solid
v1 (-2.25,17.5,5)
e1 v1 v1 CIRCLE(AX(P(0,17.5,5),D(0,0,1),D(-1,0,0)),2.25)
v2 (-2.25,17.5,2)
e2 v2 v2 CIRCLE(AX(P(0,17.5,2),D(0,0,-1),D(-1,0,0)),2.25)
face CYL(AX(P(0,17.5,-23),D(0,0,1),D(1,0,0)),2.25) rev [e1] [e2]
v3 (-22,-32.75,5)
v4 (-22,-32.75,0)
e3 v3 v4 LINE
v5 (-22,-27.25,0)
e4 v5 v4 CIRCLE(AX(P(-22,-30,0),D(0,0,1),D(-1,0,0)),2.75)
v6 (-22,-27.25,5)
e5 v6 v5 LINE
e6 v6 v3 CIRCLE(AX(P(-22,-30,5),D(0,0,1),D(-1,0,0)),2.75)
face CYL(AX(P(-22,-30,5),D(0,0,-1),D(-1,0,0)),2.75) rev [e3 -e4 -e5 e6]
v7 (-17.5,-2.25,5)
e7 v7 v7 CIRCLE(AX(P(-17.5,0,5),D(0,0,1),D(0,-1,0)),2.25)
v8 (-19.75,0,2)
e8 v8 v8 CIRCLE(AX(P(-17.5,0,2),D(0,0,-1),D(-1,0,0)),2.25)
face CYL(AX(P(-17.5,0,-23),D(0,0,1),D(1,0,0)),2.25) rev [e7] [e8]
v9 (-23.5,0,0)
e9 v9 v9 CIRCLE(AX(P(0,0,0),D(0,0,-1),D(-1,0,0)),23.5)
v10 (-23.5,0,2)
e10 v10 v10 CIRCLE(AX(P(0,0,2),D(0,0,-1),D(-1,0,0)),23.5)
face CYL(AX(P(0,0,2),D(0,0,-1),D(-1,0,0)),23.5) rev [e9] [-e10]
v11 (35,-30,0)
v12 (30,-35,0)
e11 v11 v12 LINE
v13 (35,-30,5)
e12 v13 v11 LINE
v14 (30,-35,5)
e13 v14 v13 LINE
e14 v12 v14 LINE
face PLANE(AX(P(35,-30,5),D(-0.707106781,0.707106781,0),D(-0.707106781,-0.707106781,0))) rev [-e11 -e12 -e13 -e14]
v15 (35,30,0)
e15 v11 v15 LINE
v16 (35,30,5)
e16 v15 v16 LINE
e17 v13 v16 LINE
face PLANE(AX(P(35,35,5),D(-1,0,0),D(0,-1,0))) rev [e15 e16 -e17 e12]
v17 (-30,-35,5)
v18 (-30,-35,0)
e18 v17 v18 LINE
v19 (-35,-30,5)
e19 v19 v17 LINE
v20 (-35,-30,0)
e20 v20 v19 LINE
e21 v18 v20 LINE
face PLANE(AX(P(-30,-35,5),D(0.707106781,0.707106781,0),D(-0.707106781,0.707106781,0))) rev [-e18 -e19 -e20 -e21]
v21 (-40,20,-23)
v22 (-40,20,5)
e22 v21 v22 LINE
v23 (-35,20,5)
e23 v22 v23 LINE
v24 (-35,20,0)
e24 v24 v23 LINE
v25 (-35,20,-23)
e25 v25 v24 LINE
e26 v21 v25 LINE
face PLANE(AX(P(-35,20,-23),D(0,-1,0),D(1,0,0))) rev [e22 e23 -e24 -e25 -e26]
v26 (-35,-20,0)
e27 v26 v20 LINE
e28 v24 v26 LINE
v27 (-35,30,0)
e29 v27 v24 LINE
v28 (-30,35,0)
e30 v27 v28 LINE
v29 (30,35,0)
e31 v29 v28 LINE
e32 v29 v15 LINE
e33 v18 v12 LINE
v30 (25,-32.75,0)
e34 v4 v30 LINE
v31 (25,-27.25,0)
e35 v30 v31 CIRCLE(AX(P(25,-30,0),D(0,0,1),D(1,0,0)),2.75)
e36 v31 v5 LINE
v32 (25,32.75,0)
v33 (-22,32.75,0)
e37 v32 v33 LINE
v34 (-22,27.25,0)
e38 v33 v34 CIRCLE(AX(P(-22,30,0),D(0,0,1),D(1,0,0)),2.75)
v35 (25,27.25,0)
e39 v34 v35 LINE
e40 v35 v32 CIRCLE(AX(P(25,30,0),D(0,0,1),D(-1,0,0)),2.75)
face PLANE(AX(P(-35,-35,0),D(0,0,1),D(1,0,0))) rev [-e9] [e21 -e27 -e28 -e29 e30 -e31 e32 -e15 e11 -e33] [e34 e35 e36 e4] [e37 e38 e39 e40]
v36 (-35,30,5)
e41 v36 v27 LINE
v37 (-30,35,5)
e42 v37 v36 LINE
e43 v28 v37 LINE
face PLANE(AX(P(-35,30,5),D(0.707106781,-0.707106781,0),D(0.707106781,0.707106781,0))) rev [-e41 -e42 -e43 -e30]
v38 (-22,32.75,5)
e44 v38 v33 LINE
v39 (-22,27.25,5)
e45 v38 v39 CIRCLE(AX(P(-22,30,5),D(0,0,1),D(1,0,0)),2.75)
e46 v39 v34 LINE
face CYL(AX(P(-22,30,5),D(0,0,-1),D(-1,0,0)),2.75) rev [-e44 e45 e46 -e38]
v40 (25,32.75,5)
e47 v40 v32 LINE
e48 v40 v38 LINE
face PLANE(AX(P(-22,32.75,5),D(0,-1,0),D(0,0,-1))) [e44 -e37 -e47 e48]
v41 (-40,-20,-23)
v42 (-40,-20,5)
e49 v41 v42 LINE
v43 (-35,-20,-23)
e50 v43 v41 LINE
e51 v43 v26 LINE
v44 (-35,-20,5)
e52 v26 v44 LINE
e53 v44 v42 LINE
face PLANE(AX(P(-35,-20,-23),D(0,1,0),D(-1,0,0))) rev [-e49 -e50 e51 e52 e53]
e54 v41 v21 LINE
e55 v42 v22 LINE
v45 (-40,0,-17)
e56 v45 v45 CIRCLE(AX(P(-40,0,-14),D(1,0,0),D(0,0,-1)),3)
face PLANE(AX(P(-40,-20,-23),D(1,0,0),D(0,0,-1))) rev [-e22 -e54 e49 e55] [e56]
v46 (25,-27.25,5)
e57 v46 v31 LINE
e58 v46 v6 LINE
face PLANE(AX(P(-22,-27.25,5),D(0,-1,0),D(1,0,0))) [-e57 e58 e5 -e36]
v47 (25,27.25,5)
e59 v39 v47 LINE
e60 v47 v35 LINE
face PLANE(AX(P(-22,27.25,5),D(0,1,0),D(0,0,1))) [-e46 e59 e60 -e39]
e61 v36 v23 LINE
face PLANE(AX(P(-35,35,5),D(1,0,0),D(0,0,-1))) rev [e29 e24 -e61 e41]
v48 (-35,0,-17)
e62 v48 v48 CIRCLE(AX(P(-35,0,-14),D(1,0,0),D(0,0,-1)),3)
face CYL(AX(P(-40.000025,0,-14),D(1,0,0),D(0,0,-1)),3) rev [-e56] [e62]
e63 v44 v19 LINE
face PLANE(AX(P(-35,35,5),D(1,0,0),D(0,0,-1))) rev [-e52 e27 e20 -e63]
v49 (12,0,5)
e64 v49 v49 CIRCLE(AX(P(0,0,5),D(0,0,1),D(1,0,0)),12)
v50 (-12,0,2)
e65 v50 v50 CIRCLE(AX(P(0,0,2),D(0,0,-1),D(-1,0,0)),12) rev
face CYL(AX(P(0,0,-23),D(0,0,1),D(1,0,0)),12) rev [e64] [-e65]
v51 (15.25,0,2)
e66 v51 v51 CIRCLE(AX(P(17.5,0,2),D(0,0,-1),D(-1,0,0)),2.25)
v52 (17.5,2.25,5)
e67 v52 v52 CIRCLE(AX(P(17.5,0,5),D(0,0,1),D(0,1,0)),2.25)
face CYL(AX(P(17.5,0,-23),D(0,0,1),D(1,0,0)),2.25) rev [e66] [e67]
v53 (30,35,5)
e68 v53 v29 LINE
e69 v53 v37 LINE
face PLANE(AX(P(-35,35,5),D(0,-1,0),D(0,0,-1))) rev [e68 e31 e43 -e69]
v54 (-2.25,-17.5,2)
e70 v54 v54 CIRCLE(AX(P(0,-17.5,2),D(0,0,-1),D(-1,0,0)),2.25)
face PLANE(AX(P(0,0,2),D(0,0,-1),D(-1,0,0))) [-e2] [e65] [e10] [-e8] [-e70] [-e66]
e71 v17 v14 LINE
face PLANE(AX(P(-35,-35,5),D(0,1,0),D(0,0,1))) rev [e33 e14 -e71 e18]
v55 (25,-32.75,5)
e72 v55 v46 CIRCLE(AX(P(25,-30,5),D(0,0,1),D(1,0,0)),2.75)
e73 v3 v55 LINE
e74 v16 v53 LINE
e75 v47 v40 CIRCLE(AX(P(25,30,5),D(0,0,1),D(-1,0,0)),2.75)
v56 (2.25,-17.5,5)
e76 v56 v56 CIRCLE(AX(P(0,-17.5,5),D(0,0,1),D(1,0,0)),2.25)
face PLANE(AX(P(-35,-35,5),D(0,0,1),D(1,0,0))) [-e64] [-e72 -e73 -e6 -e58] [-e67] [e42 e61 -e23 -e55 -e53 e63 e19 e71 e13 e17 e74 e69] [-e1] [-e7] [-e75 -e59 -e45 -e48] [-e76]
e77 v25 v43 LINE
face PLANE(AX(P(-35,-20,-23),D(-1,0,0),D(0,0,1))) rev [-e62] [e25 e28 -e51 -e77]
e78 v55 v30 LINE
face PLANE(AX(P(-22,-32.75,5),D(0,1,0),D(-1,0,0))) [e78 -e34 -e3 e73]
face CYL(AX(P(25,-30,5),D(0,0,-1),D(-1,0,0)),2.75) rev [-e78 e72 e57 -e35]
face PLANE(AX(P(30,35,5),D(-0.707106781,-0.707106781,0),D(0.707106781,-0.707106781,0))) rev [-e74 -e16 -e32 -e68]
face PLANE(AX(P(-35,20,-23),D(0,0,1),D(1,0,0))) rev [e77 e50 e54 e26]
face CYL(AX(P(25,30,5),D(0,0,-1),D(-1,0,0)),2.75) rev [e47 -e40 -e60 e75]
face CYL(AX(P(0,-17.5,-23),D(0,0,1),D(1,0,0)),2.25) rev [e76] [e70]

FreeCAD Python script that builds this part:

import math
import FreeCAD as App
import Part
import Sketcher


def edges_at(feature, points):
    """Names of the edges that pass closest to the given points."""
    edges = feature.Shape.Edges
    near = lambda p: min(range(len(edges)), key=lambda i: edges[i].distToShape(Part.Vertex(*p))[0])
    return sorted({f"Edge{near(p) + 1}" for p in points})

doc = App.newDocument("Part")
body = doc.addObject("PartDesign::Body", "Body")

# Sketch on XY plane
sketch1 = body.newObject("Sketcher::SketchObject", "Sketch")
sketch1.AttachmentSupport = (doc.getObject("XY_Plane"), [""])
sketch1.MapMode = "FlatFace"
sketch1.addGeometry(Part.LineSegment(App.Vector(-35, 35, 0), App.Vector(-35, -35, 0)), False)
sketch1.addGeometry(Part.LineSegment(App.Vector(-35, -35, 0), App.Vector(35, -35, 0)), False)
sketch1.addGeometry(Part.LineSegment(App.Vector(35, -35, 0), App.Vector(35, 35, 0)), False)
sketch1.addGeometry(Part.LineSegment(App.Vector(35, 35, 0), App.Vector(-35, 35, 0)), False)
sketch1.addGeometry(Part.ArcOfCircle(Part.Circle(App.Vector(-22, -30, 0), App.Vector(0, 0, 1), 2.8), math.radians(90), math.radians(270)), False)
sketch1.addGeometry(Part.LineSegment(App.Vector(-22, -27.2, 0), App.Vector(25, -27.2, 0)), False)
sketch1.addGeometry(Part.ArcOfCircle(Part.Circle(App.Vector(25, -30, 0), App.Vector(0, 0, 1), 2.8), math.radians(-90), math.radians(90)), False)
sketch1.addGeometry(Part.LineSegment(App.Vector(25, -32.8, 0), App.Vector(-22, -32.8, 0)), False)
sketch1.addGeometry(Part.ArcOfCircle(Part.Circle(App.Vector(-22, 30, 0), App.Vector(0, 0, 1), 2.8), math.radians(90), math.radians(270)), False)
sketch1.addGeometry(Part.LineSegment(App.Vector(-22, 32.8, 0), App.Vector(25, 32.8, 0)), False)
sketch1.addGeometry(Part.ArcOfCircle(Part.Circle(App.Vector(25, 30, 0), App.Vector(0, 0, 1), 2.8), math.radians(-90), math.radians(90)), False)
sketch1.addGeometry(Part.LineSegment(App.Vector(25, 27.2, 0), App.Vector(-22, 27.2, 0)), False)
sketch1.addConstraint(Sketcher.Constraint("Coincident", 0, 2, 1, 1))
sketch1.addConstraint(Sketcher.Constraint("Coincident", 1, 2, 2, 1))
sketch1.addConstraint(Sketcher.Constraint("Coincident", 2, 2, 3, 1))
sketch1.addConstraint(Sketcher.Constraint("Coincident", 3, 2, 0, 1))
sketch1.addConstraint(Sketcher.Constraint("Tangent", 4, 1, 5, 1))
sketch1.addConstraint(Sketcher.Constraint("Tangent", 5, 2, 6, 2))
sketch1.addConstraint(Sketcher.Constraint("Tangent", 6, 1, 7, 1))
sketch1.addConstraint(Sketcher.Constraint("Tangent", 7, 2, 4, 2))
sketch1.addConstraint(Sketcher.Constraint("Tangent", 8, 1, 9, 1))
sketch1.addConstraint(Sketcher.Constraint("Tangent", 9, 2, 10, 2))
sketch1.addConstraint(Sketcher.Constraint("Tangent", 10, 1, 11, 1))
sketch1.addConstraint(Sketcher.Constraint("Tangent", 11, 2, 8, 2))
sketch1.addConstraint(Sketcher.Constraint("Vertical", 0))
sketch1.addConstraint(Sketcher.Constraint("Horizontal", 1))
sketch1.addConstraint(Sketcher.Constraint("Vertical", 2))
sketch1.addConstraint(Sketcher.Constraint("Horizontal", 3))
sketch1.addConstraint(Sketcher.Constraint("Horizontal", 5))
sketch1.addConstraint(Sketcher.Constraint("Horizontal", 7))
sketch1.addConstraint(Sketcher.Constraint("Horizontal", 9))
sketch1.addConstraint(Sketcher.Constraint("Horizontal", 11))
sketch1.addConstraint(Sketcher.Constraint("Equal", 6, 8))
sketch1.addConstraint(Sketcher.Constraint("Symmetric", 0, 2, 2, 2, -1, 1))
sketch1.addConstraint(Sketcher.Constraint("Symmetric", 4, 3, 8, 3, -1))
sketch1.addConstraint(Sketcher.Constraint("Vertical", 6, 3, 10, 3))
sketch1.addConstraint(Sketcher.Constraint("Equal", 3, 0))
sketch1.addConstraint(Sketcher.Constraint("DistanceX", 1, 1, 1, 2, 70.0))
sketch1.addConstraint(Sketcher.Constraint("DistanceX", 5, 1, 5, 2, 47.0))
sketch1.addConstraint(Sketcher.Constraint("Radius", 4, 2.75))
sketch1.addConstraint(Sketcher.Constraint("DistanceX", 4, 3, -1, 1, 22.0))
sketch1.addConstraint(Sketcher.Constraint("DistanceY", 4, 3, -1, 1, 30.0))
pad1 = body.newObject("PartDesign::Pad", "Pad")
pad1.Profile = sketch1
pad1.Length = 5
doc.recompute()

chamfer = body.newObject("PartDesign::Chamfer", "Chamfer")
chamfer.Base = (pad1, edges_at(pad1, [
    (-35, 35, 2.5),
    (35, 35, 2.5),
    (35, -35, 2.5),
    (-35, -35, 2.5),
]))
chamfer.Size = 5

# Sketch on XY plane
sketch2 = body.newObject("Sketcher::SketchObject", "Sketch001")
sketch2.AttachmentSupport = (doc.getObject("XY_Plane"), [""])
sketch2.MapMode = "FlatFace"
sketch2.addGeometry(Part.LineSegment(App.Vector(-35, 20, 0), App.Vector(-35, -20, 0)), False)
sketch2.addGeometry(Part.LineSegment(App.Vector(-35, -20, 0), App.Vector(-40, -20, 0)), False)
sketch2.addGeometry(Part.LineSegment(App.Vector(-40, -20, 0), App.Vector(-40, 20, 0)), False)
sketch2.addGeometry(Part.LineSegment(App.Vector(-40, 20, 0), App.Vector(-35, 20, 0)), False)
sketch2.addConstraint(Sketcher.Constraint("Coincident", 0, 2, 1, 1))
sketch2.addConstraint(Sketcher.Constraint("Coincident", 1, 2, 2, 1))
sketch2.addConstraint(Sketcher.Constraint("Coincident", 2, 2, 3, 1))
sketch2.addConstraint(Sketcher.Constraint("Coincident", 3, 2, 0, 1))
sketch2.addConstraint(Sketcher.Constraint("Vertical", 0))
sketch2.addConstraint(Sketcher.Constraint("Horizontal", 1))
sketch2.addConstraint(Sketcher.Constraint("Vertical", 2))
sketch2.addConstraint(Sketcher.Constraint("Horizontal", 3))
sketch2.addConstraint(Sketcher.Constraint("DistanceX", 1, 2, 1, 1, 5.0))
sketch2.addConstraint(Sketcher.Constraint("DistanceY", 0, 2, 0, 1, 40.0))
sketch2.addConstraint(Sketcher.Constraint("DistanceX", 0, 2, -1, 1, 35.0))
sketch2.addConstraint(Sketcher.Constraint("DistanceY", 0, 2, -1, 1, 20.0))
pad2 = body.newObject("PartDesign::Pad", "Pad001")
pad2.Profile = sketch2
pad2.Type = "TwoLengths"
pad2.Length = 23
pad2.Length2 = 5
pad2.Reversed = True

# Sketch on YZ plane
sketch3 = body.newObject("Sketcher::SketchObject", "Sketch002")
sketch3.AttachmentSupport = (doc.getObject("YZ_Plane"), [""])
sketch3.MapMode = "FlatFace"
sketch3.AttachmentOffset = App.Placement(App.Vector(0, 0, -35), App.Rotation())
sketch3.addGeometry(Part.Circle(App.Vector(0, -14, 0), App.Vector(0, 0, 1), 3), False)
sketch3.addConstraint(Sketcher.Constraint("PointOnObject", 0, 3, -2))
sketch3.addConstraint(Sketcher.Constraint("Diameter", 0, 6.0))
sketch3.addConstraint(Sketcher.Constraint("DistanceY", 0, 3, -1, 1, 14.0))
pocket1 = body.newObject("PartDesign::Pocket", "Pocket")
pocket1.Profile = sketch3
pocket1.Type = "ThroughAll"

# Sketch on XY plane
sketch4 = body.newObject("Sketcher::SketchObject", "Sketch003")
sketch4.AttachmentSupport = (doc.getObject("XY_Plane"), [""])
sketch4.MapMode = "FlatFace"
sketch4.AttachmentOffset = App.Placement(App.Vector(0, 0, 5), App.Rotation())
sketch4.addGeometry(Part.Circle(App.Vector(0, 0, 0), App.Vector(0, 0, 1), 12), False)
sketch4.addConstraint(Sketcher.Constraint("Coincident", 0, 3, -1, 1))
sketch4.addConstraint(Sketcher.Constraint("Diameter", 0, 24.0))
pocket2 = body.newObject("PartDesign::Pocket", "Pocket001")
pocket2.Profile = sketch4
pocket2.Type = "ThroughAll"

# Sketch on XY plane
sketch5 = body.newObject("Sketcher::SketchObject", "Sketch004")
sketch5.AttachmentSupport = (doc.getObject("XY_Plane"), [""])
sketch5.MapMode = "FlatFace"
sketch5.addGeometry(Part.Circle(App.Vector(0, 0, 0), App.Vector(0, 0, 1), 24), False)
sketch5.addConstraint(Sketcher.Constraint("Coincident", 0, 3, -1, 1))
sketch5.addConstraint(Sketcher.Constraint("Diameter", 0, 47.0))
pocket3 = body.newObject("PartDesign::Pocket", "Pocket002")
pocket3.Profile = sketch5
pocket3.Length = 2
pocket3.Reversed = True

# Sketch on XY plane
sketch6 = body.newObject("Sketcher::SketchObject", "Sketch005")
sketch6.AttachmentSupport = (doc.getObject("XY_Plane"), [""])
sketch6.MapMode = "FlatFace"
sketch6.AttachmentOffset = App.Placement(App.Vector(0, 0, 5), App.Rotation())
sketch6.addGeometry(Part.Circle(App.Vector(0, -17.5, 0), App.Vector(0, 0, 1), 2.2), False)
sketch6.addConstraint(Sketcher.Constraint("PointOnObject", 0, 3, -2))
sketch6.addConstraint(Sketcher.Constraint("Diameter", 0, 4.5))
sketch6.addConstraint(Sketcher.Constraint("DistanceY", 0, 3, -1, 1, 17.5))
pocket4 = body.newObject("PartDesign::Pocket", "Pocket003")
pocket4.Profile = sketch6
pocket4.Type = "ThroughAll"
doc.recompute()

polarpattern = body.newObject("PartDesign::PolarPattern", "PolarPattern")
polarpattern.Originals = [pocket4]
polarpattern.Axis = (doc.getObject("Z_Axis"), [""])
polarpattern.Angle = 360
polarpattern.Occurrences = 4
body.Tip = polarpattern

doc.recompute()
